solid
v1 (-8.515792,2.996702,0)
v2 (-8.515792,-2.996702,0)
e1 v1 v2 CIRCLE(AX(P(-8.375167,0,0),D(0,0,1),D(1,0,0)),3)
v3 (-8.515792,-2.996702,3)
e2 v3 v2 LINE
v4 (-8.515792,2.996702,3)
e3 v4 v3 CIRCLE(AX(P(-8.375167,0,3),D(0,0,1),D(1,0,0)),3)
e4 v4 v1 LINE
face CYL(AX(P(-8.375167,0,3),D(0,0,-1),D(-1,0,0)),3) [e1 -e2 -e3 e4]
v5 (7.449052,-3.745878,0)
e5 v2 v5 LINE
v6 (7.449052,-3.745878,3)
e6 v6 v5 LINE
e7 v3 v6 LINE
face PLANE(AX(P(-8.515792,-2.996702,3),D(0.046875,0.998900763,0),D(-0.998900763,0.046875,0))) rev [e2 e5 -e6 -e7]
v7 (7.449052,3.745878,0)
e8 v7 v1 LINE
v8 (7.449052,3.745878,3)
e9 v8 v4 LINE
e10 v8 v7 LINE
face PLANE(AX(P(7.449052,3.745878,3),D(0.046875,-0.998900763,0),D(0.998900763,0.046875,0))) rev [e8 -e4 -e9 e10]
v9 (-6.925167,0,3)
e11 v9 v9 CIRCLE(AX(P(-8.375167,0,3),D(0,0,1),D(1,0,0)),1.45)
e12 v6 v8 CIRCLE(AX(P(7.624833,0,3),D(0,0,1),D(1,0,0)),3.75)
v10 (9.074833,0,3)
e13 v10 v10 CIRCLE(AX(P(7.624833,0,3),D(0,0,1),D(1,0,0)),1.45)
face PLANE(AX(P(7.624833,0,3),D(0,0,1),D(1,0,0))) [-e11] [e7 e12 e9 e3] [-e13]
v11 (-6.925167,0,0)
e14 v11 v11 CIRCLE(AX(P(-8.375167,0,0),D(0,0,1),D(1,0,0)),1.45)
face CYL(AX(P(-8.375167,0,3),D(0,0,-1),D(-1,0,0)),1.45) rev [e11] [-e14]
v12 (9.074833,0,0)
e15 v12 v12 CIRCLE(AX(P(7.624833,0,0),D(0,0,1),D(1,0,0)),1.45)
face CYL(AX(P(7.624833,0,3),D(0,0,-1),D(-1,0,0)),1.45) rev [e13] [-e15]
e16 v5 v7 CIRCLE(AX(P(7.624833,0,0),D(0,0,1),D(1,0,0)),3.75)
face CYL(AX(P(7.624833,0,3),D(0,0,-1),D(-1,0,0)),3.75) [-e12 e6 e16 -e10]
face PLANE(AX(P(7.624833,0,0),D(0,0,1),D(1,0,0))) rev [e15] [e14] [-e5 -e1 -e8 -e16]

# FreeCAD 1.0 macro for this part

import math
import FreeCAD as App
import Part
import Sketcher
from FreeCAD import Vector
Q = App.Units.Quantity

doc = App.newDocument("Part")
body = doc.addObject("PartDesign::Body", "Body")

# Sketch on XY plane
sketch1 = body.newObject("Sketcher::SketchObject", "Sketch")
sketch1.AttachmentSupport = (doc.getObject("XY_Plane"), [""])
sketch1.MapMode = "FlatFace"
sketch1.addGeometry([
    Part.LineSegment(Vector(-8.5, -3, 0), Vector(7.4, -3.7, 0)),  # 0
    Part.ArcOfCircle(Part.Circle(Vector(7.6, 0, 0), Vector(0, 0, 1), 3.8), math.radians(-93), math.radians(93)),  # 1
    Part.LineSegment(Vector(7.4, 3.7, 0), Vector(-8.5, 3, 0)),  # 2
    Part.ArcOfCircle(Part.Circle(Vector(-8.4, 0, 0), Vector(0, 0, 1), 3), math.radians(93), math.radians(267)),  # 3
    Part.Circle(Vector(-8.4, 0, 0), Vector(0, 0, 1), 1.4),  # 4
    Part.Circle(Vector(7.6, 0, 0), Vector(0, 0, 1), 1.4),  # 5
], False)
sketch1.addConstraint([
    Sketcher.Constraint("Tangent", 0, 2, 1, 1),
    Sketcher.Constraint("Tangent", 1, 2, 2, 1),
    Sketcher.Constraint("Tangent", 2, 2, 3, 1),
    Sketcher.Constraint("Tangent", 3, 2, 0, 1),
    Sketcher.Constraint("Coincident", 4, 3, 3, 3),
    Sketcher.Constraint("Coincident", 5, 3, 1, 3),
    Sketcher.Constraint("Equal", 4, 5),
    Sketcher.Constraint("Symmetric", 0, 2, 1, 2, -1),
    Sketcher.Constraint("Radius", 3, Q("3 mm")),
    Sketcher.Constraint("Diameter", 4, Q("2.9 mm")),
    Sketcher.Constraint("Radius", 1, Q("3.75 mm")),
    Sketcher.Constraint("DistanceX", 3, 3, 1, 3, Q("16 mm")),
    Sketcher.Constraint("DistanceX", 2, 2, -1, 1, Q("8.515792 mm")),
])
pad1 = body.newObject("PartDesign::Pad", "Pad")
pad1.Profile = sketch1
pad1.Length = 3

doc.recompute()
